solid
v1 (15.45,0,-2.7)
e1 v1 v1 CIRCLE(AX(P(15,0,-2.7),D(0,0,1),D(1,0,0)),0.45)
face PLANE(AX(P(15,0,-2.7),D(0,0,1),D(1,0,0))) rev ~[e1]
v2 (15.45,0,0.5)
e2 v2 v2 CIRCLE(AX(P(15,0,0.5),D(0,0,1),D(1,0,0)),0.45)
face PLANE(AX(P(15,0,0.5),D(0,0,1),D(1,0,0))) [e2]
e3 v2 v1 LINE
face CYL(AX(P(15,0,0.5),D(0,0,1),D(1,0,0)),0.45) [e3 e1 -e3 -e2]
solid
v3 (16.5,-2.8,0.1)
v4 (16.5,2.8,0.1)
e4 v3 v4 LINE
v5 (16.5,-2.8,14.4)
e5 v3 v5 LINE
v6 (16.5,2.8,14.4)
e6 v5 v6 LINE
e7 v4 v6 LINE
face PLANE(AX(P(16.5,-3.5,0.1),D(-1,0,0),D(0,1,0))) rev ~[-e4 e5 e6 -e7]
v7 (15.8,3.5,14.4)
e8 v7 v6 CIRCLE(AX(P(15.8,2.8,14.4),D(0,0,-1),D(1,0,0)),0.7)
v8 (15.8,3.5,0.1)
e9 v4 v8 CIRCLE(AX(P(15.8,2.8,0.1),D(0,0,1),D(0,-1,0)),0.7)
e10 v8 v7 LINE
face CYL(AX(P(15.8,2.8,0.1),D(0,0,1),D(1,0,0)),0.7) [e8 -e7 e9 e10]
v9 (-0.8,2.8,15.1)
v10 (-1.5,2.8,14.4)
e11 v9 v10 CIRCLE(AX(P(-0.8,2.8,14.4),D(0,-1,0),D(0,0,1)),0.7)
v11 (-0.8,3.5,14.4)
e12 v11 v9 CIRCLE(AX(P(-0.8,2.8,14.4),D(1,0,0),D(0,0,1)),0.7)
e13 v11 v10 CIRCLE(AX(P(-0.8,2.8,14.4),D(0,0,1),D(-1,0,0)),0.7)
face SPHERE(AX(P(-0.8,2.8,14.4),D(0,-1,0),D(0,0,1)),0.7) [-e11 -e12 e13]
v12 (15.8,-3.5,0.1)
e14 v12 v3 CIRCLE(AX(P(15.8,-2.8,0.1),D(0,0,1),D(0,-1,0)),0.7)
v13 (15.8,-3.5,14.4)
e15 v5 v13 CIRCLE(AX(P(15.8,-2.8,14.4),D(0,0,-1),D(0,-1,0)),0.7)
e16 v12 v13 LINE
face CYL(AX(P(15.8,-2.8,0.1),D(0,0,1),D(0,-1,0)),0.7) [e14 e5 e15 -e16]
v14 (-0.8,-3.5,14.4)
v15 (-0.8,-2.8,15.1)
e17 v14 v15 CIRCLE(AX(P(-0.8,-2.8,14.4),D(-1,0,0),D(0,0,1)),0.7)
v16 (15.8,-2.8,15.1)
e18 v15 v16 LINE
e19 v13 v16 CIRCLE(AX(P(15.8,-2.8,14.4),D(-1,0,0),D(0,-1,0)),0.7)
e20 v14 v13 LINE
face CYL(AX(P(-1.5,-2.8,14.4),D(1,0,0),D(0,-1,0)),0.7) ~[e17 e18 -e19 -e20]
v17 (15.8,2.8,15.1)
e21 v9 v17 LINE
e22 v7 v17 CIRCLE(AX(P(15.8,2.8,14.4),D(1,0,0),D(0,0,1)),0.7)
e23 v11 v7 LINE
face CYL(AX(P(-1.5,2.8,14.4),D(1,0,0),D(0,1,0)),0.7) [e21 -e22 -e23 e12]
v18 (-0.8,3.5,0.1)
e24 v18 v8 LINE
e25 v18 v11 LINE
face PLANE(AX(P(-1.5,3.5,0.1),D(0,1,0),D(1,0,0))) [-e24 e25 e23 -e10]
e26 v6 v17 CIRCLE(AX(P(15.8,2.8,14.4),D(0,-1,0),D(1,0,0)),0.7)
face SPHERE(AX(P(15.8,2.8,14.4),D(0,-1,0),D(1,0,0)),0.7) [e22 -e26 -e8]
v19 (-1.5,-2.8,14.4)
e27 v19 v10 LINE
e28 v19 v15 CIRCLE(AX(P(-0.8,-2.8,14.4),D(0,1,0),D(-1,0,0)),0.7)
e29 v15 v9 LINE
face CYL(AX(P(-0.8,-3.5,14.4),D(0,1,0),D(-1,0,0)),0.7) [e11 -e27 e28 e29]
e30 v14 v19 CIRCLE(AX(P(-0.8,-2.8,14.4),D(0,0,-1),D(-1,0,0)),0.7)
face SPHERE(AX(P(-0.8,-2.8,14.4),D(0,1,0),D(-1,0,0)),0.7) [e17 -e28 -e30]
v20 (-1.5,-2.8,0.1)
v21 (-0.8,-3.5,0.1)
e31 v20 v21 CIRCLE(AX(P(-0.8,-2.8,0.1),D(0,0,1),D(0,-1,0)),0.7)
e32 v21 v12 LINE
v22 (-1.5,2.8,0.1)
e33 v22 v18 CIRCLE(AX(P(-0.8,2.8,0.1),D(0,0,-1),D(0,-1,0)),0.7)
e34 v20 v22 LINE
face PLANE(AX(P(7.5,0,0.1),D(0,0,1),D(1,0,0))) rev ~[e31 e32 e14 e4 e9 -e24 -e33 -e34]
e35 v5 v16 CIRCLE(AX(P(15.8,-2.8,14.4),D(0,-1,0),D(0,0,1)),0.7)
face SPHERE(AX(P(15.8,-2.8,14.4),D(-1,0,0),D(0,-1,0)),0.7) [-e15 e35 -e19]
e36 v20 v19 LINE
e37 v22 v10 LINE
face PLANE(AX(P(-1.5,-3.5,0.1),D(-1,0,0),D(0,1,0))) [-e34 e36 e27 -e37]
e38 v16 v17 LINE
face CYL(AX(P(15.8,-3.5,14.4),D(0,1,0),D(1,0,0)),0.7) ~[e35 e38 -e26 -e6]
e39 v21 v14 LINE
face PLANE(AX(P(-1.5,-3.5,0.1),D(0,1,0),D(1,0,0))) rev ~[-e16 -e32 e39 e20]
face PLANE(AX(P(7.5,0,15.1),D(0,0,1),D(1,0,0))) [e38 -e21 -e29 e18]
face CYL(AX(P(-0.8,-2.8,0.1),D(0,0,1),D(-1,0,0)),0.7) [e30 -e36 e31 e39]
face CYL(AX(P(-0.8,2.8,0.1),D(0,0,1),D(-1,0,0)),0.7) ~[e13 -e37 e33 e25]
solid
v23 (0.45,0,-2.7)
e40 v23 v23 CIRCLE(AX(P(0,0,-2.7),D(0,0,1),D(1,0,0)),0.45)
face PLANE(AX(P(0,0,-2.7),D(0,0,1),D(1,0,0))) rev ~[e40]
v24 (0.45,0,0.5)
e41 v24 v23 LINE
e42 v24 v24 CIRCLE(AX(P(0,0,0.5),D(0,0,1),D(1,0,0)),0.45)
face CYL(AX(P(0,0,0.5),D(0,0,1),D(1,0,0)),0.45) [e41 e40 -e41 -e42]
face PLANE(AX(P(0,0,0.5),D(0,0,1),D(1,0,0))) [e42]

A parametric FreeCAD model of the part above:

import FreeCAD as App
import Part
import Sketcher


def edges_at(feature, points):
    """Names of the edges that pass closest to the given points."""
    edges = feature.Shape.Edges
    near = lambda p: min(range(len(edges)), key=lambda i: edges[i].distToShape(Part.Vertex(*p))[0])
    return sorted({f"Edge{near(p) + 1}" for p in points})

doc = App.newDocument("Part")
params = doc.addObject("Spreadsheet::Sheet", "Params")
for row, (alias, value) in enumerate([
    ("sketch1_width", "18 mm"),
    ("sketch1_height", "7 mm"),
    ("pad1_length", "15 mm"),
    ("fillet_radius", "0.7 mm"),
    ("sketch2_diameter", "0.9 mm"),
    ("pad2_length", "3.2 mm"),
], start=1):
    params.set(f"A{row}", alias)
    params.set(f"B{row}", "=" + value)
    params.setAlias(f"B{row}", alias)

body = doc.addObject("PartDesign::Body", "Body")

sketch1 = doc.addObject("Sketcher::SketchObject", "Sketch")
body.addObject(sketch1)
sketch1.AttachmentSupport = (doc.XY_Plane, [""])
sketch1.MapMode = "FlatFace"
sketch1.AttachmentOffset = App.Placement(App.Vector(0, 0, 0.1), App.Rotation())
sketch1.addGeometry([
    Part.LineSegment(App.Vector(-2, 4, 0), App.Vector(-2, -4, 0)),
    Part.LineSegment(App.Vector(-2, -4, 0), App.Vector(16, -4, 0)),
    Part.LineSegment(App.Vector(16, -4, 0), App.Vector(16, 4, 0)),
    Part.LineSegment(App.Vector(16, 4, 0), App.Vector(-2, 4, 0)),
], False)
sketch1.addConstraint([
    Sketcher.Constraint("Coincident", 0, 2, 1, 1),
    Sketcher.Constraint("Coincident", 1, 2, 2, 1),
    Sketcher.Constraint("Coincident", 2, 2, 3, 1),
    Sketcher.Constraint("Coincident", 3, 2, 0, 1),
    Sketcher.Constraint("Vertical", 0),
    Sketcher.Constraint("Horizontal", 1),
    Sketcher.Constraint("Vertical", 2),
    Sketcher.Constraint("Horizontal", 3),
    Sketcher.Constraint("DistanceX", 1, 1, 1, 2, 18.0),
    Sketcher.Constraint("DistanceY", 0, 2, 0, 1, 7.0),
    Sketcher.Constraint("DistanceX", 0, 2, -1, 1, 1.5),
    Sketcher.Constraint("DistanceY", 0, 2, -1, 1, 3.5),
])
sketch1.setExpression("Constraints[8]", "Params.sketch1_width")
sketch1.setExpression("Constraints[9]", "Params.sketch1_height")
pad1 = doc.addObject("PartDesign::Pad", "Pad")
body.addObject(pad1)
pad1.Profile = sketch1
pad1.setExpression("Length", "Params.pad1_length")
doc.recompute()

fillet = doc.addObject("PartDesign::Fillet", "Fillet")
body.addObject(fillet)
fillet.Base = (pad1, edges_at(pad1, [
    (-1.5, 0, 15.1),
    (-1.5, -3.5, 7.6),
    (7.5, -3.5, 15.1),
    (16.5, -3.5, 7.6),
    (16.5, 0, 15.1),
    (16.5, 3.5, 7.6),
    (7.5, 3.5, 15.1),
    (-1.5, 3.5, 7.6),
]))
fillet.setExpression("Radius", "Params.fillet_radius")
body2 = doc.addObject("PartDesign::Body", "Body001")
body2.AllowCompound = True

sketch2 = doc.addObject("Sketcher::SketchObject", "Sketch001")
body2.addObject(sketch2)
sketch2.AttachmentSupport = (doc.getObject("XY_Plane001"), [""])
sketch2.MapMode = "FlatFace"
sketch2.AttachmentOffset = App.Placement(App.Vector(0, 0, 0.5), App.Rotation())
sketch2.addGeometry([
    Part.Circle(App.Vector(0, 0, 0), App.Vector(0, 0, 1), 0.45),
    Part.Circle(App.Vector(15, 0, 0), App.Vector(0, 0, 1), 0.45),
], False)
sketch2.addConstraint([
    Sketcher.Constraint("Coincident", 0, 3, -1, 1),
    Sketcher.Constraint("Equal", 0, 1),
    Sketcher.Constraint("PointOnObject", 1, 3, -1),
    Sketcher.Constraint("Diameter", 0, 0.9),
    Sketcher.Constraint("DistanceX", -1, 1, 1, 3, 15.0),
])
sketch2.setExpression("Constraints[3]", "Params.sketch2_diameter")
pad2 = doc.addObject("PartDesign::Pad", "Pad001")
body2.addObject(pad2)
pad2.Profile = sketch2
pad2.setExpression("Length", "Params.pad2_length")
pad2.Reversed = True

doc.recompute()
